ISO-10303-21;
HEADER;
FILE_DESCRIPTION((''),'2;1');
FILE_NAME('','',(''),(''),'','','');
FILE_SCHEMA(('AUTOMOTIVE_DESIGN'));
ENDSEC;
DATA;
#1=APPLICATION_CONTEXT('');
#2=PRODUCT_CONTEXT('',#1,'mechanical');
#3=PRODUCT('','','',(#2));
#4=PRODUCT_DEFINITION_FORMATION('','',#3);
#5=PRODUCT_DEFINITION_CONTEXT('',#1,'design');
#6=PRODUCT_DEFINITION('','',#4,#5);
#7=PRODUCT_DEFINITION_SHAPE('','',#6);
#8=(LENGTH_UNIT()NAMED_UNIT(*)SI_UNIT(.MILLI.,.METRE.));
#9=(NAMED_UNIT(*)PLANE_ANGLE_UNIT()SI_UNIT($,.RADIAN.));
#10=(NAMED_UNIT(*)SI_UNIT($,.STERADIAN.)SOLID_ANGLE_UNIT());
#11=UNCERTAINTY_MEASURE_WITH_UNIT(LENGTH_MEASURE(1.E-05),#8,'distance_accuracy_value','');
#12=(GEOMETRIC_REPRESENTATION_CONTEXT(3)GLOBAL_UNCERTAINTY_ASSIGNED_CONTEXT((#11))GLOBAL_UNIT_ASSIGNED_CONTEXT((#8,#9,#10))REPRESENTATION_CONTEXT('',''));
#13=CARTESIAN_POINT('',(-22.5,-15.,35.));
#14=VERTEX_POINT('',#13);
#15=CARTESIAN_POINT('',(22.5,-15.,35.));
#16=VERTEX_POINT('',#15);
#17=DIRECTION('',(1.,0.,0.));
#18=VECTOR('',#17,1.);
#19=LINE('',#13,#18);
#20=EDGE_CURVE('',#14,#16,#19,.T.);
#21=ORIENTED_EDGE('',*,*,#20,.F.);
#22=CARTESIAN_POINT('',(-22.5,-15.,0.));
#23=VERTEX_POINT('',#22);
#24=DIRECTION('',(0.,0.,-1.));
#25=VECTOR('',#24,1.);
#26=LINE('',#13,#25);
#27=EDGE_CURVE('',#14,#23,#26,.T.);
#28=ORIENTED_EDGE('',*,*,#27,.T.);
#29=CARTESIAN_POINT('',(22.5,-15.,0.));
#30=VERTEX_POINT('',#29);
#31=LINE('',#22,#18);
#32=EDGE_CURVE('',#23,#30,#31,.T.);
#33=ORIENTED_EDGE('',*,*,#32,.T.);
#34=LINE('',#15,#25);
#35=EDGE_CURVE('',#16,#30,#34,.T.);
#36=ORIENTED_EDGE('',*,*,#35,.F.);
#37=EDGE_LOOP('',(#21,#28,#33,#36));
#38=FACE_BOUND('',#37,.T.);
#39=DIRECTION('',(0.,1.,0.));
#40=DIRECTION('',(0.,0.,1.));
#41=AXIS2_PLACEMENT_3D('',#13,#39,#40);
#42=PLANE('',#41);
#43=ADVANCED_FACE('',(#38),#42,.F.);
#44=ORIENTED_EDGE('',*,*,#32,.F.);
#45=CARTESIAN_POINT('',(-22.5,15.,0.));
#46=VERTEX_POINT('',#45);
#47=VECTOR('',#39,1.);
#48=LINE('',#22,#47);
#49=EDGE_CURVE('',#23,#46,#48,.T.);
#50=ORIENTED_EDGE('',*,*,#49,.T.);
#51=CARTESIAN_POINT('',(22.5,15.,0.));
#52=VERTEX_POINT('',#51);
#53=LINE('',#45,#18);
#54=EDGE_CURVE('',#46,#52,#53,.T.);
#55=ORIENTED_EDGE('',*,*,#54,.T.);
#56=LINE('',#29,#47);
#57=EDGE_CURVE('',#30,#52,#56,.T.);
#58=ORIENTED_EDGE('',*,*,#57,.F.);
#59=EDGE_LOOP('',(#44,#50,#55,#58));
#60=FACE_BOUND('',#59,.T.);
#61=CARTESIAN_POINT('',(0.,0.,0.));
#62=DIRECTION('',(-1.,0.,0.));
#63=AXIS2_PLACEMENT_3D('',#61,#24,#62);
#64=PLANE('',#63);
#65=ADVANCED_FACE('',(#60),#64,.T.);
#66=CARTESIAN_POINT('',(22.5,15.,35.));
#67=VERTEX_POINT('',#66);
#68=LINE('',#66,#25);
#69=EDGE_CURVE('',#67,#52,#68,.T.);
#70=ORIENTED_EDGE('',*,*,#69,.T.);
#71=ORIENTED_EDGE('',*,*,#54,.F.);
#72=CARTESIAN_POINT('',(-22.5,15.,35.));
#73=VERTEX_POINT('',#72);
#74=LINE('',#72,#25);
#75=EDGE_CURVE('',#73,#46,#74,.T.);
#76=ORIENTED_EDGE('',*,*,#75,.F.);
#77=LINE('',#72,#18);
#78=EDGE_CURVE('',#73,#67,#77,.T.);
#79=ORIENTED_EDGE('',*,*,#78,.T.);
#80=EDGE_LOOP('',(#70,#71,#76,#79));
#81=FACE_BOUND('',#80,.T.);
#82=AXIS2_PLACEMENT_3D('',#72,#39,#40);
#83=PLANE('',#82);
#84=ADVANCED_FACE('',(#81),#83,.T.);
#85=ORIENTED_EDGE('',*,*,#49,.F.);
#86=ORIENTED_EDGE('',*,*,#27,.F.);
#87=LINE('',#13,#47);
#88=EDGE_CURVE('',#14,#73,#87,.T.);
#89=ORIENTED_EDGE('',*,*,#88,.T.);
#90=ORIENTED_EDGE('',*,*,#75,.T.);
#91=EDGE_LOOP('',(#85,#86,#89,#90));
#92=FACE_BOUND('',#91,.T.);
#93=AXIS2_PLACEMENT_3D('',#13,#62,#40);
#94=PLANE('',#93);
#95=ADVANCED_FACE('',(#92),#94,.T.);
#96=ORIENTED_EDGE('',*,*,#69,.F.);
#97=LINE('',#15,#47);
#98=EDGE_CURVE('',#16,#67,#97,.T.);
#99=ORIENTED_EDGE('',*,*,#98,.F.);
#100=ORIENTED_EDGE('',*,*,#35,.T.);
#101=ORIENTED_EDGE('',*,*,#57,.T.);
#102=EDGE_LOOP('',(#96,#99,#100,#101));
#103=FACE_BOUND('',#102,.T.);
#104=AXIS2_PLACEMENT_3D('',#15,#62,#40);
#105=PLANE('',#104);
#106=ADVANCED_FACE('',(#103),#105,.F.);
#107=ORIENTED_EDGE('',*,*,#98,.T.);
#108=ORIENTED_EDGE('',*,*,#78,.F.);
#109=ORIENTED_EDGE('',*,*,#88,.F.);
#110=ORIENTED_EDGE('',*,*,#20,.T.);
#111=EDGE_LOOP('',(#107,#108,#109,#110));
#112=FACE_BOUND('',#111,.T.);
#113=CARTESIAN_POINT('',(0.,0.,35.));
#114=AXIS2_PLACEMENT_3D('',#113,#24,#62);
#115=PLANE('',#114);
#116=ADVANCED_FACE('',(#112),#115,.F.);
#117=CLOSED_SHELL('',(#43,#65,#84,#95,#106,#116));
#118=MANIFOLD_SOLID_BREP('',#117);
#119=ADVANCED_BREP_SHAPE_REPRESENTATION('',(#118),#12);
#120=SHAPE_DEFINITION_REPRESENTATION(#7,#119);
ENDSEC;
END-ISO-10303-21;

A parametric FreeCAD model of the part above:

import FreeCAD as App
import Part
import Sketcher
from FreeCAD import Vector
Q = App.Units.Quantity


def add_polygon(sketch, points):
    """Adds a closed chain of lines whose ends are joined by coincident constraints."""
    first, n = sketch.GeometryCount, len(points)
    for a, b in zip(points, points[1:] + points[:1]):
        sketch.addGeometry(Part.LineSegment(App.Vector(*a, 0), App.Vector(*b, 0)), False)
    for i in range(n):
        sketch.addConstraint(Sketcher.Constraint("Coincident", first + i, 2, first + (i + 1) % n, 1))

doc = App.newDocument("Part")
body = doc.addObject("PartDesign::Body", "Body")

sketch1 = body.newObject("Sketcher::SketchObject", "Sketch")
sketch1.AttachmentSupport = (doc.getObject("XY_Plane"), [""])
sketch1.MapMode = "FlatFace"
add_polygon(sketch1, [(-22.5, 15), (-22.5, -15), (22.5, -15), (22.5, 15)])
sketch1.addConstraint(Sketcher.Constraint("Vertical", 0))
sketch1.addConstraint(Sketcher.Constraint("Horizontal", 1))
sketch1.addConstraint(Sketcher.Constraint("Vertical", 2))
sketch1.addConstraint(Sketcher.Constraint("Horizontal", 3))
sketch1.addConstraint(Sketcher.Constraint("Symmetric", 0, 2, 2, 2, -1, 1))
sketch1.addConstraint(Sketcher.Constraint("DistanceX", 1, 1, 1, 2, Q("45 mm")))
sketch1.addConstraint(Sketcher.Constraint("DistanceY", 0, 2, 0, 1, Q("30 mm")))
pad1 = body.newObject("PartDesign::Pad", "Pad")
pad1.Profile = sketch1
pad1.Length = 35

doc.recompute()
